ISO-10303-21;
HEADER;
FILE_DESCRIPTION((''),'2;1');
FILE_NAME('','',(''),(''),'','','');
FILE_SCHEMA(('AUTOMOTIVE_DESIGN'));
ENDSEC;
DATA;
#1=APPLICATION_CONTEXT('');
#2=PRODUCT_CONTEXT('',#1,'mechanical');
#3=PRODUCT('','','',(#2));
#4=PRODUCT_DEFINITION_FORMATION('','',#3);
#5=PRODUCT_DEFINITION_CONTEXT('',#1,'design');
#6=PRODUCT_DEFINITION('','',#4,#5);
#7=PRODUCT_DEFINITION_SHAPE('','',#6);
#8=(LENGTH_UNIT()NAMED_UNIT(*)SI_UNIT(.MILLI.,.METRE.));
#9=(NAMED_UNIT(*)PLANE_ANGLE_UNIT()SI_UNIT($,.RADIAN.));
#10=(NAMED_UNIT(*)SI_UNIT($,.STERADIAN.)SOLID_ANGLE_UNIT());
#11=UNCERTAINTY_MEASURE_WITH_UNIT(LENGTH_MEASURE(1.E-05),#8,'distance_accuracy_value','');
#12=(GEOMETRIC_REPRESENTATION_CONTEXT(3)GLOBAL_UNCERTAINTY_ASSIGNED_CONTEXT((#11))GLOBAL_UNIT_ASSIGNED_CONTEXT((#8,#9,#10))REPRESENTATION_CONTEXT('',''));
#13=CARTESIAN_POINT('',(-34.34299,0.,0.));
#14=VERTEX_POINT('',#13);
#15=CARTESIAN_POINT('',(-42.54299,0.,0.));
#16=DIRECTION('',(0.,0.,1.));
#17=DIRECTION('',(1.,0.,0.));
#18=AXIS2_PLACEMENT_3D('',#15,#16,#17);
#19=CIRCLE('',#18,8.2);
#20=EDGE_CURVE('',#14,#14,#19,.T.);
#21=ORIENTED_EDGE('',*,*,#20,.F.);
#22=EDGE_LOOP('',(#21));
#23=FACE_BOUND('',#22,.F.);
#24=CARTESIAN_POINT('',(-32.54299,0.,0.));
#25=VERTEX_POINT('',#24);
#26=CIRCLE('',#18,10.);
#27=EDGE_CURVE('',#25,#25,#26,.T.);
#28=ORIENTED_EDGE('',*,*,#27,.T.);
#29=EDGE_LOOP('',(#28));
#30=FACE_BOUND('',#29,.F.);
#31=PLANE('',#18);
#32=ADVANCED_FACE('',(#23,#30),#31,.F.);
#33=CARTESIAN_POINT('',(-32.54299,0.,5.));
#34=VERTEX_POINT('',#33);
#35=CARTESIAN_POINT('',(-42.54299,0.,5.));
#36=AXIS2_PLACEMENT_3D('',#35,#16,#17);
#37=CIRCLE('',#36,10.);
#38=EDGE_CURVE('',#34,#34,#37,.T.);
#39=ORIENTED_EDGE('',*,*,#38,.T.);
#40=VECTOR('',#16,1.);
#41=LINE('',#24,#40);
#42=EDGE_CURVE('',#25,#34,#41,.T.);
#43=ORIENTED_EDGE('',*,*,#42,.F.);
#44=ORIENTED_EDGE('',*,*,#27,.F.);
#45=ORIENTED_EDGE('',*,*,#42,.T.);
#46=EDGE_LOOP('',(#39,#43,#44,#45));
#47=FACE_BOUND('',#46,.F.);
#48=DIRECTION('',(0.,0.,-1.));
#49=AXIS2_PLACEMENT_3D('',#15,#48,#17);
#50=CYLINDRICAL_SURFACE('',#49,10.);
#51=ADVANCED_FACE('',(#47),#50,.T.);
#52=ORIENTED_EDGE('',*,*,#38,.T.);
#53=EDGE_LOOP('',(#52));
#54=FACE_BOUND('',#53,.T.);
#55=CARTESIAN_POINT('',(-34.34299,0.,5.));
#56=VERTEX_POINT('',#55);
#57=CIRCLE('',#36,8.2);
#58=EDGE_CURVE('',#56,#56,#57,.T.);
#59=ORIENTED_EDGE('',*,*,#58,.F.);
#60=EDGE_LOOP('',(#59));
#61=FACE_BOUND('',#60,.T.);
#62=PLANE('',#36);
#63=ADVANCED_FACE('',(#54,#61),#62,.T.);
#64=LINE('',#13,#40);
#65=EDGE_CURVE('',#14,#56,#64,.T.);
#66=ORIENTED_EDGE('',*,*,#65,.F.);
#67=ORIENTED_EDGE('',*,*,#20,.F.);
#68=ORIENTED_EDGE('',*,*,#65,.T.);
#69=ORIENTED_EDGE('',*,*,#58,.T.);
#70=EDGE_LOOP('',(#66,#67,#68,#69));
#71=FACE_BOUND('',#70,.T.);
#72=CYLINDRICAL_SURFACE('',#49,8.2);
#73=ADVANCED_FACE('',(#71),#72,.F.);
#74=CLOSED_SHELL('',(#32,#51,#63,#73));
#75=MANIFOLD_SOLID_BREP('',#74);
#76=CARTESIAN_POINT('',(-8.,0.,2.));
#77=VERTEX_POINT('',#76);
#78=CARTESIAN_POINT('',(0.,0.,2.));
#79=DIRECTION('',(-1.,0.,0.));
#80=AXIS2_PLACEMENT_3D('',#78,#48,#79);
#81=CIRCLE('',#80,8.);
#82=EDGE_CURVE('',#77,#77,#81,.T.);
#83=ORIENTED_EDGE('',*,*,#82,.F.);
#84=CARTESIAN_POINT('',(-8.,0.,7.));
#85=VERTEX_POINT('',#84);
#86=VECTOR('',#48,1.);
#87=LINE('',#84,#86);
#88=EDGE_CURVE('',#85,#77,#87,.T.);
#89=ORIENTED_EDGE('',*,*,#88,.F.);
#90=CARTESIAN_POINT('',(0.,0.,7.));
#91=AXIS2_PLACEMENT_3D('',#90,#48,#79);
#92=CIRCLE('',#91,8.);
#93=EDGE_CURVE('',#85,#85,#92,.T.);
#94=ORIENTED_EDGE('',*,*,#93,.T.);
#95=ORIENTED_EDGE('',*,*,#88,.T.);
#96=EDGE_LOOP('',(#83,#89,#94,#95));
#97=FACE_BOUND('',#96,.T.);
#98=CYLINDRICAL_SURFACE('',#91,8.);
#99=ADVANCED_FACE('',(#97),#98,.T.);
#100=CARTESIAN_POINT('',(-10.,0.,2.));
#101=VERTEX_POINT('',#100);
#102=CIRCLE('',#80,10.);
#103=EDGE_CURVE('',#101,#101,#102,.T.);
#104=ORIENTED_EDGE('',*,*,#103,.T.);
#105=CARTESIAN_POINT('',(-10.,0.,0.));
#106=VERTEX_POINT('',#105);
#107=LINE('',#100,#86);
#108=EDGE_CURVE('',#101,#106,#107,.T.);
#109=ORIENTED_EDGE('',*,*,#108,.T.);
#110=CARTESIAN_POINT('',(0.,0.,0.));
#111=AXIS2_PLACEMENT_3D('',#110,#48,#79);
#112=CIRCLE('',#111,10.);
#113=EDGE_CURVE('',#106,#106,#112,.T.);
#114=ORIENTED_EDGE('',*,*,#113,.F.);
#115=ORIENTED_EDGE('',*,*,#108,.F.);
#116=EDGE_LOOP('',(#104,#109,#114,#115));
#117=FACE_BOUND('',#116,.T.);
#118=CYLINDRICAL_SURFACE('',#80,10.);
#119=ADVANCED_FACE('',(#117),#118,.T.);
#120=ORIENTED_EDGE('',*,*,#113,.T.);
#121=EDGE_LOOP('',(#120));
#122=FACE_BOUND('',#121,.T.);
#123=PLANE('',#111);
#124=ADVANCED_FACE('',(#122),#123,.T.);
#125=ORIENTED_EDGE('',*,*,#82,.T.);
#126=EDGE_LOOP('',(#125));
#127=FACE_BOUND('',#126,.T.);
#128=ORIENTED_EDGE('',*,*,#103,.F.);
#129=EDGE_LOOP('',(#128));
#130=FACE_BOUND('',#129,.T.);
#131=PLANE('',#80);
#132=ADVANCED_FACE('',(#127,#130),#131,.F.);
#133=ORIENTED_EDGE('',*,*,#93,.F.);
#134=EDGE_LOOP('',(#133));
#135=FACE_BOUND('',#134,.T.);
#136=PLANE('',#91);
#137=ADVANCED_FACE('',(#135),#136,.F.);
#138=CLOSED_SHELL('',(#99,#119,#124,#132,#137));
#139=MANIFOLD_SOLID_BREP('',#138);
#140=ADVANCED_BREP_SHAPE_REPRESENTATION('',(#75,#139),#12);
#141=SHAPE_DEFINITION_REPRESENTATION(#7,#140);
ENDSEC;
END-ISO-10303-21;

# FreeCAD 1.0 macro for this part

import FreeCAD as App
import Part
import Sketcher
Q = App.Units.Quantity

doc = App.newDocument("Part")
body = doc.addObject("PartDesign::Body", "Body")

sketch1 = body.newObject("Sketcher::SketchObject", "Sketch")
sketch1.AttachmentSupport = (doc.getObject("XZ_Plane"), [""])
sketch1.MapMode = "FlatFace"
sketch1.addGeometry([
    Part.LineSegment(App.Vector(-10, 0, 0), App.Vector(0, 0, 0)),
    Part.LineSegment(App.Vector(0, 0, 0), App.Vector(0, 7, 0)),
    Part.LineSegment(App.Vector(0, 7, 0), App.Vector(-8, 7, 0)),
    Part.LineSegment(App.Vector(-8, 7, 0), App.Vector(-8, 2, 0)),
    Part.LineSegment(App.Vector(-8, 2, 0), App.Vector(-10, 2, 0)),
    Part.LineSegment(App.Vector(-10, 2, 0), App.Vector(-10, 0, 0)),
], False)
sketch1.addConstraint([
    Sketcher.Constraint("Coincident", 0, 2, 1, 1),
    Sketcher.Constraint("Coincident", 1, 2, 2, 1),
    Sketcher.Constraint("Coincident", 2, 2, 3, 1),
    Sketcher.Constraint("Coincident", 3, 2, 4, 1),
    Sketcher.Constraint("Coincident", 4, 2, 5, 1),
    Sketcher.Constraint("Coincident", 5, 2, 0, 1),
    Sketcher.Constraint("Horizontal", 0),
    Sketcher.Constraint("Vertical", 1),
    Sketcher.Constraint("Horizontal", 2),
    Sketcher.Constraint("Vertical", 3),
    Sketcher.Constraint("Horizontal", 4),
    Sketcher.Constraint("Vertical", 5),
    Sketcher.Constraint("Coincident", 0, 2, -1, 1),
    Sketcher.Constraint("Equal", 4, 5),
    Sketcher.Constraint("DistanceX", 0, 1, 0, 2, Q("10 mm")),
    Sketcher.Constraint("DistanceX", 2, 2, 2, 1, Q("8 mm")),
    Sketcher.Constraint("DistanceY", 1, 1, 1, 2, Q("7 mm")),
])
revolution = body.newObject("PartDesign::Revolution", "Revolution")
revolution.Profile = sketch1
revolution.ReferenceAxis = (sketch1, ["V_Axis"])
revolution.Angle = 360
body2 = doc.addObject("PartDesign::Body", "Body001")

sketch2 = body2.newObject("Sketcher::SketchObject", "Sketch001")
sketch2.AttachmentSupport = (doc.getObject("XY_Plane001"), [""])
sketch2.MapMode = "FlatFace"
sketch2.addGeometry([
    Part.Circle(App.Vector(-43, 0, 0), App.Vector(0, 0, 1), 10),
    Part.Circle(App.Vector(-43, 0, 0), App.Vector(0, 0, 1), 8),
], False)
sketch2.addConstraint([
    Sketcher.Constraint("Coincident", 1, 3, 0, 3),
    Sketcher.Constraint("PointOnObject", 0, 3, -1),
    Sketcher.Constraint("Diameter", 0, Q("20 mm")),
    Sketcher.Constraint("Diameter", 1, Q("16.4 mm")),
    Sketcher.Constraint("DistanceX", 0, 3, -1, 1, Q("42.54299 mm")),
])
pad1 = body2.newObject("PartDesign::Pad", "Pad")
pad1.Profile = sketch2
pad1.Length = 5

doc.recompute()
